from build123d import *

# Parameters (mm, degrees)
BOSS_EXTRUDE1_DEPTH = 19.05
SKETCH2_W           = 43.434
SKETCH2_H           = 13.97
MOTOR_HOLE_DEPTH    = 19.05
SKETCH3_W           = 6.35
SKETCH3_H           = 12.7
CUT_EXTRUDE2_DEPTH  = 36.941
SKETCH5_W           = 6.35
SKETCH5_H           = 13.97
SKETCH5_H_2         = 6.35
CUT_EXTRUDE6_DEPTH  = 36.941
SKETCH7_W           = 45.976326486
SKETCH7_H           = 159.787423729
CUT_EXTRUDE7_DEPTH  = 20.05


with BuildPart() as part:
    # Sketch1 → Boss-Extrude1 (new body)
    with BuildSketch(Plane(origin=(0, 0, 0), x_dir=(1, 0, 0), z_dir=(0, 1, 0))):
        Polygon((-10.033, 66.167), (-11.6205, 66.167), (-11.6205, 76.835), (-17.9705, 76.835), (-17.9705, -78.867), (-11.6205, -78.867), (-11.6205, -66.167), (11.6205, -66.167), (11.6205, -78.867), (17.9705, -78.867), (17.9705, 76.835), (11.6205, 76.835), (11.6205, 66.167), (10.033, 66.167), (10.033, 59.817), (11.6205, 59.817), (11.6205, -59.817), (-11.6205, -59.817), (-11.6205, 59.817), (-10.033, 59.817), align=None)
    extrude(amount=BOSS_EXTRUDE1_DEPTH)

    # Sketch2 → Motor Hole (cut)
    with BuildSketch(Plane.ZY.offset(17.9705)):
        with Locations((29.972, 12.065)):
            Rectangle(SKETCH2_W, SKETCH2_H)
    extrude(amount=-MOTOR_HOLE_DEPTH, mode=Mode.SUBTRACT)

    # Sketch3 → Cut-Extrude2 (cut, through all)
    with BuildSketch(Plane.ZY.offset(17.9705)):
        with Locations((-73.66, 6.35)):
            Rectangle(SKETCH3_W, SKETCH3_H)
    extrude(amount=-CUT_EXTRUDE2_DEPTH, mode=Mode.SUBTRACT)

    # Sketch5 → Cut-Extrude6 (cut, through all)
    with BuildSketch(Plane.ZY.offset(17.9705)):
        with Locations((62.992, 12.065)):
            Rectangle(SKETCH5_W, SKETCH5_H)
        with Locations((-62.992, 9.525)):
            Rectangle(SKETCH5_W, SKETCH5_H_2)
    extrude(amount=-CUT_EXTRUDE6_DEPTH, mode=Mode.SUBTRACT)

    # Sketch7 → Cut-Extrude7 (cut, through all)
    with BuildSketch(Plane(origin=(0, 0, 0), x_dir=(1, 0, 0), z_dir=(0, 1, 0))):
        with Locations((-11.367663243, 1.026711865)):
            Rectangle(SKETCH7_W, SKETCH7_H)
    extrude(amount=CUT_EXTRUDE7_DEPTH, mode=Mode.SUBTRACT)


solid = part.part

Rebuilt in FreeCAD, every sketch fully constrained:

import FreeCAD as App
import Part
import Sketcher
Q = App.Units.Quantity


def add_polygon(sketch, points):
    """Adds a closed chain of lines whose ends are joined by coincident constraints."""
    first, n = sketch.GeometryCount, len(points)
    for a, b in zip(points, points[1:] + points[:1]):
        sketch.addGeometry(Part.LineSegment(App.Vector(*a, 0), App.Vector(*b, 0)), False)
    for i in range(n):
        sketch.addConstraint(Sketcher.Constraint("Coincident", first + i, 2, first + (i + 1) % n, 1))

doc = App.newDocument("Part")
params = doc.addObject("Spreadsheet::Sheet", "Params")
for row, (alias, value) in enumerate([
    ("sketch1_height", "0.5 in"),
    ("sketch1_width", "0.25 in"),
    ("sketch1_height2", "0.42 in"),
    ("sketch1_height3", "6.13 in"),
    ("sketch1_width2", "0.0625 in"),
    ("pad1_length", "0.75 in"),
    ("sketch2_width", "0.55 in"),
    ("sketch2_height", "1.71 in"),
    ("pocket1_length", "0.75 in"),
    ("sketch3_width", "0.5 in"),
    ("sketch3_height", "0.25 in"),
    ("sketch4_width", "0.55 in"),
    ("sketch4_width2", "0.25 in"),
], start=1):
    params.set(f"A{row}", alias)
    params.set(f"B{row}", "=" + value)
    params.setAlias(f"B{row}", alias)

body = doc.addObject("PartDesign::Body", "Body")

sketch1 = body.newObject("Sketcher::SketchObject", "Sketch")
sketch1.AttachmentSupport = (doc.getObject("XZ_Plane"), [""])
sketch1.MapMode = "FlatFace"
add_polygon(sketch1, [(-10.033, -66.167), (-11.6205, -66.167), (-11.6205, -76.835), (-17.9705, -76.835), (-17.9705, 78.867), (-11.6205, 78.867), (-11.6205, 66.167), (11.6205, 66.167), (11.6205, 78.867), (17.9705, 78.867), (17.9705, -76.835), (11.6205, -76.835), (11.6205, -66.167), (10.033, -66.167), (10.033, -59.817), (11.6205, -59.817), (11.6205, 59.817), (-11.6205, 59.817), (-11.6205, -59.817), (-10.033, -59.817)])
sketch1.addConstraint(Sketcher.Constraint("Horizontal", 0))
sketch1.addConstraint(Sketcher.Constraint("Vertical", 1))
sketch1.addConstraint(Sketcher.Constraint("Horizontal", 2))
sketch1.addConstraint(Sketcher.Constraint("Vertical", 3))
sketch1.addConstraint(Sketcher.Constraint("Horizontal", 4))
sketch1.addConstraint(Sketcher.Constraint("Vertical", 5))
sketch1.addConstraint(Sketcher.Constraint("Horizontal", 6))
sketch1.addConstraint(Sketcher.Constraint("Vertical", 7))
sketch1.addConstraint(Sketcher.Constraint("Horizontal", 8))
sketch1.addConstraint(Sketcher.Constraint("Vertical", 9))
sketch1.addConstraint(Sketcher.Constraint("Horizontal", 10))
sketch1.addConstraint(Sketcher.Constraint("Vertical", 11))
sketch1.addConstraint(Sketcher.Constraint("Horizontal", 12))
sketch1.addConstraint(Sketcher.Constraint("Vertical", 13))
sketch1.addConstraint(Sketcher.Constraint("Horizontal", 14))
sketch1.addConstraint(Sketcher.Constraint("Vertical", 15))
sketch1.addConstraint(Sketcher.Constraint("Horizontal", 16))
sketch1.addConstraint(Sketcher.Constraint("Vertical", 17))
sketch1.addConstraint(Sketcher.Constraint("Horizontal", 18))
sketch1.addConstraint(Sketcher.Constraint("Vertical", 19))
sketch1.addConstraint(Sketcher.Constraint("Symmetric", 0, 2, 6, 2, -1, 1))
sketch1.addConstraint(Sketcher.Constraint("Symmetric", 5, 2, 11, 2, -1, 1))
sketch1.addConstraint(Sketcher.Constraint("Symmetric", 14, 2, 16, 2, -1, 1))
sketch1.addConstraint(Sketcher.Constraint("Symmetric", 4, 2, 7, 2, -2))
sketch1.addConstraint(Sketcher.Constraint("Symmetric", 2, 2, 9, 2, -2))
sketch1.addConstraint(Sketcher.Constraint("Symmetric", 13, 2, 18, 2, -2))
sketch1.addConstraint(Sketcher.Constraint("Vertical", 11, 2, 14, 2))
sketch1.addConstraint(Sketcher.Constraint("Equal", 10, 13))
sketch1.addConstraint(Sketcher.Constraint("DistanceY", 5, 2, 5, 1, Q("0.5 in")))
sketch1.addConstraint(Sketcher.Constraint("DistanceX", 2, 2, 2, 1, Q("0.25 in")))
sketch1.addConstraint(Sketcher.Constraint("DistanceY", 1, 2, 1, 1, Q("0.42 in")))
sketch1.addConstraint(Sketcher.Constraint("DistanceY", 3, 1, 3, 2, Q("6.13 in")))
sketch1.addConstraint(Sketcher.Constraint("DistanceX", 0, 2, 0, 1, Q("0.0625 in")))
sketch1.addConstraint(Sketcher.Constraint("DistanceX", 6, 1, 6, 2, Q("0.915 in")))
sketch1.setExpression("Constraints[48]", "Params.sketch1_height")
sketch1.setExpression("Constraints[49]", "Params.sketch1_width")
sketch1.setExpression("Constraints[50]", "Params.sketch1_height2")
sketch1.setExpression("Constraints[51]", "Params.sketch1_height3")
sketch1.setExpression("Constraints[52]", "Params.sketch1_width2")
pad1 = body.newObject("PartDesign::Pad", "Pad")
pad1.Profile = sketch1
pad1.setExpression("Length", "Params.pad1_length")
pad1.Reversed = True

sketch2 = body.newObject("Sketcher::SketchObject", "Sketch001")
sketch2.AttachmentSupport = (doc.getObject("YZ_Plane"), [""])
sketch2.MapMode = "FlatFace"
sketch2.AttachmentOffset = App.Placement(App.Vector(0, 0, -0.7075 * 25.4), App.Rotation())
add_polygon(sketch2, [(19.05, 8.255), (5.08, 8.255), (5.08, 51.689), (19.05, 51.689)])
sketch2.addConstraint(Sketcher.Constraint("Horizontal", 0))
sketch2.addConstraint(Sketcher.Constraint("Vertical", 1))
sketch2.addConstraint(Sketcher.Constraint("Horizontal", 2))
sketch2.addConstraint(Sketcher.Constraint("Vertical", 3))
sketch2.addConstraint(Sketcher.Constraint("DistanceX", 0, 2, 0, 1, Q("0.55 in")))
sketch2.addConstraint(Sketcher.Constraint("DistanceY", 1, 1, 1, 2, Q("1.71 in")))
sketch2.addConstraint(Sketcher.Constraint("DistanceX", -1, 1, 0, 2, Q("0.2 in")))
sketch2.addConstraint(Sketcher.Constraint("DistanceY", -1, 1, 0, 2, Q("0.325 in")))
sketch2.setExpression("Constraints[8]", "Params.sketch2_width")
sketch2.setExpression("Constraints[9]", "Params.sketch2_height")
pocket1 = body.newObject("PartDesign::Pocket", "Pocket")
pocket1.Profile = sketch2
pocket1.setExpression("Length", "Params.pocket1_length")
pocket1.Reversed = True

sketch3 = body.newObject("Sketcher::SketchObject", "Sketch002")
sketch3.AttachmentSupport = (doc.getObject("YZ_Plane"), [""])
sketch3.MapMode = "FlatFace"
sketch3.AttachmentOffset = App.Placement(App.Vector(0, 0, -0.7075 * 25.4), App.Rotation())
add_polygon(sketch3, [(12.7, -76.835), (0, -76.835), (0, -70.485), (12.7, -70.485)])
sketch3.addConstraint(Sketcher.Constraint("Horizontal", 0))
sketch3.addConstraint(Sketcher.Constraint("Vertical", 1))
sketch3.addConstraint(Sketcher.Constraint("Horizontal", 2))
sketch3.addConstraint(Sketcher.Constraint("Vertical", 3))
sketch3.addConstraint(Sketcher.Constraint("PointOnObject", 0, 2, -2))
sketch3.addConstraint(Sketcher.Constraint("DistanceX", 0, 2, 0, 1, Q("0.5 in")))
sketch3.addConstraint(Sketcher.Constraint("DistanceY", 1, 1, 1, 2, Q("0.25 in")))
sketch3.addConstraint(Sketcher.Constraint("DistanceY", 0, 2, -1, 1, Q("3.025 in")))
sketch3.setExpression("Constraints[9]", "Params.sketch3_width")
sketch3.setExpression("Constraints[10]", "Params.sketch3_height")
pocket2 = body.newObject("PartDesign::Pocket", "Pocket001")
pocket2.Profile = sketch3
pocket2.Type = "ThroughAll"
pocket2.Reversed = True

sketch4 = body.newObject("Sketcher::SketchObject", "Sketch003")
sketch4.AttachmentSupport = (doc.getObject("YZ_Plane"), [""])
sketch4.MapMode = "FlatFace"
sketch4.AttachmentOffset = App.Placement(App.Vector(0, 0, -0.7075 * 25.4), App.Rotation())
add_polygon(sketch4, [(19.05, 59.817), (5.08, 59.817), (5.08, 66.167), (19.05, 66.167)])
add_polygon(sketch4, [(12.7, -66.167), (6.35, -66.167), (6.35, -59.817), (12.7, -59.817)])
sketch4.addConstraint(Sketcher.Constraint("Horizontal", 0))
sketch4.addConstraint(Sketcher.Constraint("Vertical", 1))
sketch4.addConstraint(Sketcher.Constraint("Horizontal", 2))
sketch4.addConstraint(Sketcher.Constraint("Vertical", 3))
sketch4.addConstraint(Sketcher.Constraint("Horizontal", 4))
sketch4.addConstraint(Sketcher.Constraint("Vertical", 5))
sketch4.addConstraint(Sketcher.Constraint("Horizontal", 6))
sketch4.addConstraint(Sketcher.Constraint("Vertical", 7))
sketch4.addConstraint(Sketcher.Constraint("Equal", 6, 1))
sketch4.addConstraint(Sketcher.Constraint("Equal", 3, 5))
sketch4.addConstraint(Sketcher.Constraint("DistanceX", 0, 2, 0, 1, Q("0.55 in")))
sketch4.addConstraint(Sketcher.Constraint("DistanceX", 4, 2, 4, 1, Q("0.25 in")))
sketch4.addConstraint(Sketcher.Constraint("DistanceX", -1, 1, 0, 2, Q("0.2 in")))
sketch4.addConstraint(Sketcher.Constraint("DistanceX", -1, 1, 6, 2, Q("0.5 in")))
sketch4.addConstraint(Sketcher.Constraint("DistanceY", 4, 2, 0, 2, Q("4.96 in")))
sketch4.addConstraint(Sketcher.Constraint("DistanceY", -1, 1, 0, 2, Q("2.355 in")))
sketch4.setExpression("Constraints[18]", "Params.sketch4_width")
sketch4.setExpression("Constraints[19]", "Params.sketch4_width2")
pocket3 = body.newObject("PartDesign::Pocket", "Pocket002")
pocket3.Profile = sketch4
pocket3.Type = "ThroughAll"
pocket3.Reversed = True

sketch5 = body.newObject("Sketcher::SketchObject", "Sketch004")
sketch5.AttachmentSupport = (doc.getObject("XZ_Plane"), [""])
sketch5.MapMode = "FlatFace"
add_polygon(sketch5, [(-34.355826, -80.920424), (-34.355826, 78.867), (11.6205, 78.867), (11.6205, -80.920424)])
sketch5.addConstraint(Sketcher.Constraint("Vertical", 0))
sketch5.addConstraint(Sketcher.Constraint("Horizontal", 1))
sketch5.addConstraint(Sketcher.Constraint("Vertical", 2))
sketch5.addConstraint(Sketcher.Constraint("Horizontal", 3))
sketch5.addConstraint(Sketcher.Constraint("DistanceY", -1, 1, 0, 2, Q("3.105 in")))
sketch5.addConstraint(Sketcher.Constraint("DistanceX", -1, 1, 1, 2, Q("0.4575 in")))
sketch5.addConstraint(Sketcher.Constraint("DistanceX", 1, 1, 1, 2, Q("45.976326 mm")))
sketch5.addConstraint(Sketcher.Constraint("DistanceY", 0, 1, 0, 2, Q("159.787424 mm")))
pocket4 = body.newObject("PartDesign::Pocket", "Pocket003")
pocket4.Profile = sketch5
pocket4.Type = "ThroughAll"

doc.recompute()
